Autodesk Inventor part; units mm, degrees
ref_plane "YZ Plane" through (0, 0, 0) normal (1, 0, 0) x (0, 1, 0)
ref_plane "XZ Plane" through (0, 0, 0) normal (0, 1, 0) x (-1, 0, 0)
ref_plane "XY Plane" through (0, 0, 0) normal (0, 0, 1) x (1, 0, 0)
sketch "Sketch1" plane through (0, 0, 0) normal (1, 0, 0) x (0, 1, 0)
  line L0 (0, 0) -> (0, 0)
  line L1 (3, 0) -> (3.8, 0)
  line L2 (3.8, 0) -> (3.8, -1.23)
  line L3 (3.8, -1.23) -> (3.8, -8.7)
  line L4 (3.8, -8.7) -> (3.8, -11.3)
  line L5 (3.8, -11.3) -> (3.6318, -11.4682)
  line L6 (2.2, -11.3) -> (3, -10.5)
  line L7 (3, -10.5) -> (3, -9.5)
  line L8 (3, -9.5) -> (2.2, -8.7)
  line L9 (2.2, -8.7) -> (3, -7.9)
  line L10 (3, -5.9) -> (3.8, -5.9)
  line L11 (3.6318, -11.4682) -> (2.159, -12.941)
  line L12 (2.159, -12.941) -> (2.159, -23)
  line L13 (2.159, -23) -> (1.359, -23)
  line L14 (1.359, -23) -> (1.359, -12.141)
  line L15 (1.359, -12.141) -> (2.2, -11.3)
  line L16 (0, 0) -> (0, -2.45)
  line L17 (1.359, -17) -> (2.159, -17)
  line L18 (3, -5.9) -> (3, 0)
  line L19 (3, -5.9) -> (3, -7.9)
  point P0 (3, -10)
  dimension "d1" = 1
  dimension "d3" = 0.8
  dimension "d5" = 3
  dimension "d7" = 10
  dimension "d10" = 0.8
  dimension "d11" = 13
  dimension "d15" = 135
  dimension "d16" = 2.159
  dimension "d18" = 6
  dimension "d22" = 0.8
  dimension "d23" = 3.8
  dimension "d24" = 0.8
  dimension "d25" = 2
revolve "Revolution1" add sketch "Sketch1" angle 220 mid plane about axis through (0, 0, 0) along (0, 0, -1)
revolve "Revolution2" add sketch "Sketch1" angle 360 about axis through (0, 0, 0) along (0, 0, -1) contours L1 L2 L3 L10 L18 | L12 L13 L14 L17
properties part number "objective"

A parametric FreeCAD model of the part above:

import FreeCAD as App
import Part
import Sketcher
from FreeCAD import Vector

doc = App.newDocument("Part")
body = doc.addObject("PartDesign::Body", "Body")

# Sketch on YZ plane
sketch1 = body.newObject("Sketcher::SketchObject", "Sketch")
sketch1.AttachmentSupport = (doc.getObject("YZ_Plane"), [""])
sketch1.MapMode = "FlatFace"
sketch1.addGeometry(Part.LineSegment(Vector(3.8, 0, 0), Vector(3, 0, 0)), False)
sketch1.addGeometry(Part.LineSegment(Vector(3, 0, 0), Vector(3, -7.9, 0)), False)
sketch1.addGeometry(Part.LineSegment(Vector(3, -7.9, 0), Vector(2.2, -8.7, 0)), False)
sketch1.addGeometry(Part.LineSegment(Vector(2.2, -8.7, 0), Vector(3, -9.5, 0)), False)
sketch1.addGeometry(Part.LineSegment(Vector(3, -9.5, 0), Vector(3, -10.5, 0)), False)
sketch1.addGeometry(Part.LineSegment(Vector(3, -10.5, 0), Vector(1.4, -12.1, 0)), False)
sketch1.addGeometry(Part.LineSegment(Vector(1.4, -12.1, 0), Vector(1.4, -23, 0)), False)
sketch1.addGeometry(Part.LineSegment(Vector(1.4, -23, 0), Vector(2.2, -23, 0)), False)
sketch1.addGeometry(Part.LineSegment(Vector(2.2, -23, 0), Vector(2.2, -12.9, 0)), False)
sketch1.addGeometry(Part.LineSegment(Vector(2.2, -12.9, 0), Vector(3.8, -11.3, 0)), False)
sketch1.addGeometry(Part.LineSegment(Vector(3.8, -11.3, 0), Vector(3.8, 0, 0)), False)
sketch1.addConstraint(Sketcher.Constraint("Coincident", 0, 2, 1, 1))
sketch1.addConstraint(Sketcher.Constraint("Coincident", 1, 2, 2, 1))
sketch1.addConstraint(Sketcher.Constraint("Coincident", 2, 2, 3, 1))
sketch1.addConstraint(Sketcher.Constraint("Coincident", 3, 2, 4, 1))
sketch1.addConstraint(Sketcher.Constraint("Coincident", 4, 2, 5, 1))
sketch1.addConstraint(Sketcher.Constraint("Coincident", 5, 2, 6, 1))
sketch1.addConstraint(Sketcher.Constraint("Coincident", 6, 2, 7, 1))
sketch1.addConstraint(Sketcher.Constraint("Coincident", 7, 2, 8, 1))
sketch1.addConstraint(Sketcher.Constraint("Coincident", 8, 2, 9, 1))
sketch1.addConstraint(Sketcher.Constraint("Coincident", 9, 2, 10, 1))
sketch1.addConstraint(Sketcher.Constraint("Coincident", 10, 2, 0, 1))
sketch1.addConstraint(Sketcher.Constraint("Horizontal", 0))
sketch1.addConstraint(Sketcher.Constraint("Vertical", 1))
sketch1.addConstraint(Sketcher.Constraint("Vertical", 4))
sketch1.addConstraint(Sketcher.Constraint("Vertical", 6))
sketch1.addConstraint(Sketcher.Constraint("Horizontal", 7))
sketch1.addConstraint(Sketcher.Constraint("Vertical", 8))
sketch1.addConstraint(Sketcher.Constraint("Vertical", 10))
sketch1.addConstraint(Sketcher.Constraint("PointOnObject", 0, 2, -1))
sketch1.addConstraint(Sketcher.Constraint("Perpendicular", 2, 3))
sketch1.addConstraint(Sketcher.Constraint("Perpendicular", 3, 5))
sketch1.addConstraint(Sketcher.Constraint("Parallel", 5, 9))
sketch1.addConstraint(Sketcher.Constraint("Vertical", 1, 2, 3, 2))
sketch1.addConstraint(Sketcher.Constraint("Equal", 0, 7))
sketch1.addConstraint(Sketcher.Constraint("Equal", 2, 3))
sketch1.addConstraint(Sketcher.Constraint("DistanceY", 4, 2, 4, 1, 1.0))
sketch1.addConstraint(Sketcher.Constraint("DistanceX", 0, 2, 0, 1, 0.8))
sketch1.addConstraint(Sketcher.Constraint("DistanceX", -1, 1, 0, 2, 3.0))
sketch1.addConstraint(Sketcher.Constraint("DistanceX", 2, 2, 1, 2, 0.8))
sketch1.addConstraint(Sketcher.Constraint("DistanceY", 8, 2, 5, 2, 0.8))
sketch1.addConstraint(Sketcher.Constraint("DistanceY", 1, 2, 1, 1, 7.9))
sketch1.addConstraint(Sketcher.Constraint("DistanceX", -1, 1, 7, 2, 2.159))
sketch1.addConstraint(Sketcher.Constraint("DistanceY", 6, 2, -1, 1, 23.0))
revolution = body.newObject("PartDesign::Revolution", "Revolution")
revolution.Profile = sketch1
revolution.ReferenceAxis = (sketch1, ["V_Axis"])
revolution.Angle = 220
revolution.Midplane = True

# Sketch on YZ plane
sketch2 = body.newObject("Sketcher::SketchObject", "Sketch001")
sketch2.AttachmentSupport = (doc.getObject("YZ_Plane"), [""])
sketch2.MapMode = "FlatFace"
sketch2.addGeometry(Part.LineSegment(Vector(3.8, 0, 0), Vector(3, 0, 0)), False)
sketch2.addGeometry(Part.LineSegment(Vector(3, 0, 0), Vector(3, -5.9, 0)), False)
sketch2.addGeometry(Part.LineSegment(Vector(3, -5.9, 0), Vector(3.8, -5.9, 0)), False)
sketch2.addGeometry(Part.LineSegment(Vector(3.8, -5.9, 0), Vector(3.8, 0, 0)), False)
sketch2.addGeometry(Part.LineSegment(Vector(2.2, -23, 0), Vector(2.2, -17, 0)), False)
sketch2.addGeometry(Part.LineSegment(Vector(2.2, -17, 0), Vector(1.4, -17, 0)), False)
sketch2.addGeometry(Part.LineSegment(Vector(1.4, -17, 0), Vector(1.4, -23, 0)), False)
sketch2.addGeometry(Part.LineSegment(Vector(1.4, -23, 0), Vector(2.2, -23, 0)), False)
sketch2.addConstraint(Sketcher.Constraint("Coincident", 0, 2, 1, 1))
sketch2.addConstraint(Sketcher.Constraint("Coincident", 1, 2, 2, 1))
sketch2.addConstraint(Sketcher.Constraint("Coincident", 2, 2, 3, 1))
sketch2.addConstraint(Sketcher.Constraint("Coincident", 3, 2, 0, 1))
sketch2.addConstraint(Sketcher.Constraint("Coincident", 4, 2, 5, 1))
sketch2.addConstraint(Sketcher.Constraint("Coincident", 5, 2, 6, 1))
sketch2.addConstraint(Sketcher.Constraint("Coincident", 6, 2, 7, 1))
sketch2.addConstraint(Sketcher.Constraint("Coincident", 7, 2, 4, 1))
sketch2.addConstraint(Sketcher.Constraint("Horizontal", 0))
sketch2.addConstraint(Sketcher.Constraint("Vertical", 1))
sketch2.addConstraint(Sketcher.Constraint("Horizontal", 2))
sketch2.addConstraint(Sketcher.Constraint("Vertical", 3))
sketch2.addConstraint(Sketcher.Constraint("Vertical", 4))
sketch2.addConstraint(Sketcher.Constraint("Horizontal", 5))
sketch2.addConstraint(Sketcher.Constraint("Vertical", 6))
sketch2.addConstraint(Sketcher.Constraint("Horizontal", 7))
sketch2.addConstraint(Sketcher.Constraint("PointOnObject", 0, 2, -1))
sketch2.addConstraint(Sketcher.Constraint("Equal", 2, 5))
sketch2.addConstraint(Sketcher.Constraint("DistanceY", 4, 1, 4, 2, 6.0))
sketch2.addConstraint(Sketcher.Constraint("DistanceX", 0, 2, 0, 1, 0.8))
sketch2.addConstraint(Sketcher.Constraint("DistanceX", -1, 1, 0, 2, 3.0))
sketch2.addConstraint(Sketcher.Constraint("DistanceY", 1, 2, 1, 1, 5.9))
sketch2.addConstraint(Sketcher.Constraint("DistanceX", -1, 1, 4, 2, 2.159))
sketch2.addConstraint(Sketcher.Constraint("DistanceY", 4, 2, -1, 1, 17.0))
revolution2 = body.newObject("PartDesign::Revolution", "Revolution001")
revolution2.Profile = sketch2
revolution2.ReferenceAxis = (sketch2, ["V_Axis"])
revolution2.Angle = 360

doc.recompute()
